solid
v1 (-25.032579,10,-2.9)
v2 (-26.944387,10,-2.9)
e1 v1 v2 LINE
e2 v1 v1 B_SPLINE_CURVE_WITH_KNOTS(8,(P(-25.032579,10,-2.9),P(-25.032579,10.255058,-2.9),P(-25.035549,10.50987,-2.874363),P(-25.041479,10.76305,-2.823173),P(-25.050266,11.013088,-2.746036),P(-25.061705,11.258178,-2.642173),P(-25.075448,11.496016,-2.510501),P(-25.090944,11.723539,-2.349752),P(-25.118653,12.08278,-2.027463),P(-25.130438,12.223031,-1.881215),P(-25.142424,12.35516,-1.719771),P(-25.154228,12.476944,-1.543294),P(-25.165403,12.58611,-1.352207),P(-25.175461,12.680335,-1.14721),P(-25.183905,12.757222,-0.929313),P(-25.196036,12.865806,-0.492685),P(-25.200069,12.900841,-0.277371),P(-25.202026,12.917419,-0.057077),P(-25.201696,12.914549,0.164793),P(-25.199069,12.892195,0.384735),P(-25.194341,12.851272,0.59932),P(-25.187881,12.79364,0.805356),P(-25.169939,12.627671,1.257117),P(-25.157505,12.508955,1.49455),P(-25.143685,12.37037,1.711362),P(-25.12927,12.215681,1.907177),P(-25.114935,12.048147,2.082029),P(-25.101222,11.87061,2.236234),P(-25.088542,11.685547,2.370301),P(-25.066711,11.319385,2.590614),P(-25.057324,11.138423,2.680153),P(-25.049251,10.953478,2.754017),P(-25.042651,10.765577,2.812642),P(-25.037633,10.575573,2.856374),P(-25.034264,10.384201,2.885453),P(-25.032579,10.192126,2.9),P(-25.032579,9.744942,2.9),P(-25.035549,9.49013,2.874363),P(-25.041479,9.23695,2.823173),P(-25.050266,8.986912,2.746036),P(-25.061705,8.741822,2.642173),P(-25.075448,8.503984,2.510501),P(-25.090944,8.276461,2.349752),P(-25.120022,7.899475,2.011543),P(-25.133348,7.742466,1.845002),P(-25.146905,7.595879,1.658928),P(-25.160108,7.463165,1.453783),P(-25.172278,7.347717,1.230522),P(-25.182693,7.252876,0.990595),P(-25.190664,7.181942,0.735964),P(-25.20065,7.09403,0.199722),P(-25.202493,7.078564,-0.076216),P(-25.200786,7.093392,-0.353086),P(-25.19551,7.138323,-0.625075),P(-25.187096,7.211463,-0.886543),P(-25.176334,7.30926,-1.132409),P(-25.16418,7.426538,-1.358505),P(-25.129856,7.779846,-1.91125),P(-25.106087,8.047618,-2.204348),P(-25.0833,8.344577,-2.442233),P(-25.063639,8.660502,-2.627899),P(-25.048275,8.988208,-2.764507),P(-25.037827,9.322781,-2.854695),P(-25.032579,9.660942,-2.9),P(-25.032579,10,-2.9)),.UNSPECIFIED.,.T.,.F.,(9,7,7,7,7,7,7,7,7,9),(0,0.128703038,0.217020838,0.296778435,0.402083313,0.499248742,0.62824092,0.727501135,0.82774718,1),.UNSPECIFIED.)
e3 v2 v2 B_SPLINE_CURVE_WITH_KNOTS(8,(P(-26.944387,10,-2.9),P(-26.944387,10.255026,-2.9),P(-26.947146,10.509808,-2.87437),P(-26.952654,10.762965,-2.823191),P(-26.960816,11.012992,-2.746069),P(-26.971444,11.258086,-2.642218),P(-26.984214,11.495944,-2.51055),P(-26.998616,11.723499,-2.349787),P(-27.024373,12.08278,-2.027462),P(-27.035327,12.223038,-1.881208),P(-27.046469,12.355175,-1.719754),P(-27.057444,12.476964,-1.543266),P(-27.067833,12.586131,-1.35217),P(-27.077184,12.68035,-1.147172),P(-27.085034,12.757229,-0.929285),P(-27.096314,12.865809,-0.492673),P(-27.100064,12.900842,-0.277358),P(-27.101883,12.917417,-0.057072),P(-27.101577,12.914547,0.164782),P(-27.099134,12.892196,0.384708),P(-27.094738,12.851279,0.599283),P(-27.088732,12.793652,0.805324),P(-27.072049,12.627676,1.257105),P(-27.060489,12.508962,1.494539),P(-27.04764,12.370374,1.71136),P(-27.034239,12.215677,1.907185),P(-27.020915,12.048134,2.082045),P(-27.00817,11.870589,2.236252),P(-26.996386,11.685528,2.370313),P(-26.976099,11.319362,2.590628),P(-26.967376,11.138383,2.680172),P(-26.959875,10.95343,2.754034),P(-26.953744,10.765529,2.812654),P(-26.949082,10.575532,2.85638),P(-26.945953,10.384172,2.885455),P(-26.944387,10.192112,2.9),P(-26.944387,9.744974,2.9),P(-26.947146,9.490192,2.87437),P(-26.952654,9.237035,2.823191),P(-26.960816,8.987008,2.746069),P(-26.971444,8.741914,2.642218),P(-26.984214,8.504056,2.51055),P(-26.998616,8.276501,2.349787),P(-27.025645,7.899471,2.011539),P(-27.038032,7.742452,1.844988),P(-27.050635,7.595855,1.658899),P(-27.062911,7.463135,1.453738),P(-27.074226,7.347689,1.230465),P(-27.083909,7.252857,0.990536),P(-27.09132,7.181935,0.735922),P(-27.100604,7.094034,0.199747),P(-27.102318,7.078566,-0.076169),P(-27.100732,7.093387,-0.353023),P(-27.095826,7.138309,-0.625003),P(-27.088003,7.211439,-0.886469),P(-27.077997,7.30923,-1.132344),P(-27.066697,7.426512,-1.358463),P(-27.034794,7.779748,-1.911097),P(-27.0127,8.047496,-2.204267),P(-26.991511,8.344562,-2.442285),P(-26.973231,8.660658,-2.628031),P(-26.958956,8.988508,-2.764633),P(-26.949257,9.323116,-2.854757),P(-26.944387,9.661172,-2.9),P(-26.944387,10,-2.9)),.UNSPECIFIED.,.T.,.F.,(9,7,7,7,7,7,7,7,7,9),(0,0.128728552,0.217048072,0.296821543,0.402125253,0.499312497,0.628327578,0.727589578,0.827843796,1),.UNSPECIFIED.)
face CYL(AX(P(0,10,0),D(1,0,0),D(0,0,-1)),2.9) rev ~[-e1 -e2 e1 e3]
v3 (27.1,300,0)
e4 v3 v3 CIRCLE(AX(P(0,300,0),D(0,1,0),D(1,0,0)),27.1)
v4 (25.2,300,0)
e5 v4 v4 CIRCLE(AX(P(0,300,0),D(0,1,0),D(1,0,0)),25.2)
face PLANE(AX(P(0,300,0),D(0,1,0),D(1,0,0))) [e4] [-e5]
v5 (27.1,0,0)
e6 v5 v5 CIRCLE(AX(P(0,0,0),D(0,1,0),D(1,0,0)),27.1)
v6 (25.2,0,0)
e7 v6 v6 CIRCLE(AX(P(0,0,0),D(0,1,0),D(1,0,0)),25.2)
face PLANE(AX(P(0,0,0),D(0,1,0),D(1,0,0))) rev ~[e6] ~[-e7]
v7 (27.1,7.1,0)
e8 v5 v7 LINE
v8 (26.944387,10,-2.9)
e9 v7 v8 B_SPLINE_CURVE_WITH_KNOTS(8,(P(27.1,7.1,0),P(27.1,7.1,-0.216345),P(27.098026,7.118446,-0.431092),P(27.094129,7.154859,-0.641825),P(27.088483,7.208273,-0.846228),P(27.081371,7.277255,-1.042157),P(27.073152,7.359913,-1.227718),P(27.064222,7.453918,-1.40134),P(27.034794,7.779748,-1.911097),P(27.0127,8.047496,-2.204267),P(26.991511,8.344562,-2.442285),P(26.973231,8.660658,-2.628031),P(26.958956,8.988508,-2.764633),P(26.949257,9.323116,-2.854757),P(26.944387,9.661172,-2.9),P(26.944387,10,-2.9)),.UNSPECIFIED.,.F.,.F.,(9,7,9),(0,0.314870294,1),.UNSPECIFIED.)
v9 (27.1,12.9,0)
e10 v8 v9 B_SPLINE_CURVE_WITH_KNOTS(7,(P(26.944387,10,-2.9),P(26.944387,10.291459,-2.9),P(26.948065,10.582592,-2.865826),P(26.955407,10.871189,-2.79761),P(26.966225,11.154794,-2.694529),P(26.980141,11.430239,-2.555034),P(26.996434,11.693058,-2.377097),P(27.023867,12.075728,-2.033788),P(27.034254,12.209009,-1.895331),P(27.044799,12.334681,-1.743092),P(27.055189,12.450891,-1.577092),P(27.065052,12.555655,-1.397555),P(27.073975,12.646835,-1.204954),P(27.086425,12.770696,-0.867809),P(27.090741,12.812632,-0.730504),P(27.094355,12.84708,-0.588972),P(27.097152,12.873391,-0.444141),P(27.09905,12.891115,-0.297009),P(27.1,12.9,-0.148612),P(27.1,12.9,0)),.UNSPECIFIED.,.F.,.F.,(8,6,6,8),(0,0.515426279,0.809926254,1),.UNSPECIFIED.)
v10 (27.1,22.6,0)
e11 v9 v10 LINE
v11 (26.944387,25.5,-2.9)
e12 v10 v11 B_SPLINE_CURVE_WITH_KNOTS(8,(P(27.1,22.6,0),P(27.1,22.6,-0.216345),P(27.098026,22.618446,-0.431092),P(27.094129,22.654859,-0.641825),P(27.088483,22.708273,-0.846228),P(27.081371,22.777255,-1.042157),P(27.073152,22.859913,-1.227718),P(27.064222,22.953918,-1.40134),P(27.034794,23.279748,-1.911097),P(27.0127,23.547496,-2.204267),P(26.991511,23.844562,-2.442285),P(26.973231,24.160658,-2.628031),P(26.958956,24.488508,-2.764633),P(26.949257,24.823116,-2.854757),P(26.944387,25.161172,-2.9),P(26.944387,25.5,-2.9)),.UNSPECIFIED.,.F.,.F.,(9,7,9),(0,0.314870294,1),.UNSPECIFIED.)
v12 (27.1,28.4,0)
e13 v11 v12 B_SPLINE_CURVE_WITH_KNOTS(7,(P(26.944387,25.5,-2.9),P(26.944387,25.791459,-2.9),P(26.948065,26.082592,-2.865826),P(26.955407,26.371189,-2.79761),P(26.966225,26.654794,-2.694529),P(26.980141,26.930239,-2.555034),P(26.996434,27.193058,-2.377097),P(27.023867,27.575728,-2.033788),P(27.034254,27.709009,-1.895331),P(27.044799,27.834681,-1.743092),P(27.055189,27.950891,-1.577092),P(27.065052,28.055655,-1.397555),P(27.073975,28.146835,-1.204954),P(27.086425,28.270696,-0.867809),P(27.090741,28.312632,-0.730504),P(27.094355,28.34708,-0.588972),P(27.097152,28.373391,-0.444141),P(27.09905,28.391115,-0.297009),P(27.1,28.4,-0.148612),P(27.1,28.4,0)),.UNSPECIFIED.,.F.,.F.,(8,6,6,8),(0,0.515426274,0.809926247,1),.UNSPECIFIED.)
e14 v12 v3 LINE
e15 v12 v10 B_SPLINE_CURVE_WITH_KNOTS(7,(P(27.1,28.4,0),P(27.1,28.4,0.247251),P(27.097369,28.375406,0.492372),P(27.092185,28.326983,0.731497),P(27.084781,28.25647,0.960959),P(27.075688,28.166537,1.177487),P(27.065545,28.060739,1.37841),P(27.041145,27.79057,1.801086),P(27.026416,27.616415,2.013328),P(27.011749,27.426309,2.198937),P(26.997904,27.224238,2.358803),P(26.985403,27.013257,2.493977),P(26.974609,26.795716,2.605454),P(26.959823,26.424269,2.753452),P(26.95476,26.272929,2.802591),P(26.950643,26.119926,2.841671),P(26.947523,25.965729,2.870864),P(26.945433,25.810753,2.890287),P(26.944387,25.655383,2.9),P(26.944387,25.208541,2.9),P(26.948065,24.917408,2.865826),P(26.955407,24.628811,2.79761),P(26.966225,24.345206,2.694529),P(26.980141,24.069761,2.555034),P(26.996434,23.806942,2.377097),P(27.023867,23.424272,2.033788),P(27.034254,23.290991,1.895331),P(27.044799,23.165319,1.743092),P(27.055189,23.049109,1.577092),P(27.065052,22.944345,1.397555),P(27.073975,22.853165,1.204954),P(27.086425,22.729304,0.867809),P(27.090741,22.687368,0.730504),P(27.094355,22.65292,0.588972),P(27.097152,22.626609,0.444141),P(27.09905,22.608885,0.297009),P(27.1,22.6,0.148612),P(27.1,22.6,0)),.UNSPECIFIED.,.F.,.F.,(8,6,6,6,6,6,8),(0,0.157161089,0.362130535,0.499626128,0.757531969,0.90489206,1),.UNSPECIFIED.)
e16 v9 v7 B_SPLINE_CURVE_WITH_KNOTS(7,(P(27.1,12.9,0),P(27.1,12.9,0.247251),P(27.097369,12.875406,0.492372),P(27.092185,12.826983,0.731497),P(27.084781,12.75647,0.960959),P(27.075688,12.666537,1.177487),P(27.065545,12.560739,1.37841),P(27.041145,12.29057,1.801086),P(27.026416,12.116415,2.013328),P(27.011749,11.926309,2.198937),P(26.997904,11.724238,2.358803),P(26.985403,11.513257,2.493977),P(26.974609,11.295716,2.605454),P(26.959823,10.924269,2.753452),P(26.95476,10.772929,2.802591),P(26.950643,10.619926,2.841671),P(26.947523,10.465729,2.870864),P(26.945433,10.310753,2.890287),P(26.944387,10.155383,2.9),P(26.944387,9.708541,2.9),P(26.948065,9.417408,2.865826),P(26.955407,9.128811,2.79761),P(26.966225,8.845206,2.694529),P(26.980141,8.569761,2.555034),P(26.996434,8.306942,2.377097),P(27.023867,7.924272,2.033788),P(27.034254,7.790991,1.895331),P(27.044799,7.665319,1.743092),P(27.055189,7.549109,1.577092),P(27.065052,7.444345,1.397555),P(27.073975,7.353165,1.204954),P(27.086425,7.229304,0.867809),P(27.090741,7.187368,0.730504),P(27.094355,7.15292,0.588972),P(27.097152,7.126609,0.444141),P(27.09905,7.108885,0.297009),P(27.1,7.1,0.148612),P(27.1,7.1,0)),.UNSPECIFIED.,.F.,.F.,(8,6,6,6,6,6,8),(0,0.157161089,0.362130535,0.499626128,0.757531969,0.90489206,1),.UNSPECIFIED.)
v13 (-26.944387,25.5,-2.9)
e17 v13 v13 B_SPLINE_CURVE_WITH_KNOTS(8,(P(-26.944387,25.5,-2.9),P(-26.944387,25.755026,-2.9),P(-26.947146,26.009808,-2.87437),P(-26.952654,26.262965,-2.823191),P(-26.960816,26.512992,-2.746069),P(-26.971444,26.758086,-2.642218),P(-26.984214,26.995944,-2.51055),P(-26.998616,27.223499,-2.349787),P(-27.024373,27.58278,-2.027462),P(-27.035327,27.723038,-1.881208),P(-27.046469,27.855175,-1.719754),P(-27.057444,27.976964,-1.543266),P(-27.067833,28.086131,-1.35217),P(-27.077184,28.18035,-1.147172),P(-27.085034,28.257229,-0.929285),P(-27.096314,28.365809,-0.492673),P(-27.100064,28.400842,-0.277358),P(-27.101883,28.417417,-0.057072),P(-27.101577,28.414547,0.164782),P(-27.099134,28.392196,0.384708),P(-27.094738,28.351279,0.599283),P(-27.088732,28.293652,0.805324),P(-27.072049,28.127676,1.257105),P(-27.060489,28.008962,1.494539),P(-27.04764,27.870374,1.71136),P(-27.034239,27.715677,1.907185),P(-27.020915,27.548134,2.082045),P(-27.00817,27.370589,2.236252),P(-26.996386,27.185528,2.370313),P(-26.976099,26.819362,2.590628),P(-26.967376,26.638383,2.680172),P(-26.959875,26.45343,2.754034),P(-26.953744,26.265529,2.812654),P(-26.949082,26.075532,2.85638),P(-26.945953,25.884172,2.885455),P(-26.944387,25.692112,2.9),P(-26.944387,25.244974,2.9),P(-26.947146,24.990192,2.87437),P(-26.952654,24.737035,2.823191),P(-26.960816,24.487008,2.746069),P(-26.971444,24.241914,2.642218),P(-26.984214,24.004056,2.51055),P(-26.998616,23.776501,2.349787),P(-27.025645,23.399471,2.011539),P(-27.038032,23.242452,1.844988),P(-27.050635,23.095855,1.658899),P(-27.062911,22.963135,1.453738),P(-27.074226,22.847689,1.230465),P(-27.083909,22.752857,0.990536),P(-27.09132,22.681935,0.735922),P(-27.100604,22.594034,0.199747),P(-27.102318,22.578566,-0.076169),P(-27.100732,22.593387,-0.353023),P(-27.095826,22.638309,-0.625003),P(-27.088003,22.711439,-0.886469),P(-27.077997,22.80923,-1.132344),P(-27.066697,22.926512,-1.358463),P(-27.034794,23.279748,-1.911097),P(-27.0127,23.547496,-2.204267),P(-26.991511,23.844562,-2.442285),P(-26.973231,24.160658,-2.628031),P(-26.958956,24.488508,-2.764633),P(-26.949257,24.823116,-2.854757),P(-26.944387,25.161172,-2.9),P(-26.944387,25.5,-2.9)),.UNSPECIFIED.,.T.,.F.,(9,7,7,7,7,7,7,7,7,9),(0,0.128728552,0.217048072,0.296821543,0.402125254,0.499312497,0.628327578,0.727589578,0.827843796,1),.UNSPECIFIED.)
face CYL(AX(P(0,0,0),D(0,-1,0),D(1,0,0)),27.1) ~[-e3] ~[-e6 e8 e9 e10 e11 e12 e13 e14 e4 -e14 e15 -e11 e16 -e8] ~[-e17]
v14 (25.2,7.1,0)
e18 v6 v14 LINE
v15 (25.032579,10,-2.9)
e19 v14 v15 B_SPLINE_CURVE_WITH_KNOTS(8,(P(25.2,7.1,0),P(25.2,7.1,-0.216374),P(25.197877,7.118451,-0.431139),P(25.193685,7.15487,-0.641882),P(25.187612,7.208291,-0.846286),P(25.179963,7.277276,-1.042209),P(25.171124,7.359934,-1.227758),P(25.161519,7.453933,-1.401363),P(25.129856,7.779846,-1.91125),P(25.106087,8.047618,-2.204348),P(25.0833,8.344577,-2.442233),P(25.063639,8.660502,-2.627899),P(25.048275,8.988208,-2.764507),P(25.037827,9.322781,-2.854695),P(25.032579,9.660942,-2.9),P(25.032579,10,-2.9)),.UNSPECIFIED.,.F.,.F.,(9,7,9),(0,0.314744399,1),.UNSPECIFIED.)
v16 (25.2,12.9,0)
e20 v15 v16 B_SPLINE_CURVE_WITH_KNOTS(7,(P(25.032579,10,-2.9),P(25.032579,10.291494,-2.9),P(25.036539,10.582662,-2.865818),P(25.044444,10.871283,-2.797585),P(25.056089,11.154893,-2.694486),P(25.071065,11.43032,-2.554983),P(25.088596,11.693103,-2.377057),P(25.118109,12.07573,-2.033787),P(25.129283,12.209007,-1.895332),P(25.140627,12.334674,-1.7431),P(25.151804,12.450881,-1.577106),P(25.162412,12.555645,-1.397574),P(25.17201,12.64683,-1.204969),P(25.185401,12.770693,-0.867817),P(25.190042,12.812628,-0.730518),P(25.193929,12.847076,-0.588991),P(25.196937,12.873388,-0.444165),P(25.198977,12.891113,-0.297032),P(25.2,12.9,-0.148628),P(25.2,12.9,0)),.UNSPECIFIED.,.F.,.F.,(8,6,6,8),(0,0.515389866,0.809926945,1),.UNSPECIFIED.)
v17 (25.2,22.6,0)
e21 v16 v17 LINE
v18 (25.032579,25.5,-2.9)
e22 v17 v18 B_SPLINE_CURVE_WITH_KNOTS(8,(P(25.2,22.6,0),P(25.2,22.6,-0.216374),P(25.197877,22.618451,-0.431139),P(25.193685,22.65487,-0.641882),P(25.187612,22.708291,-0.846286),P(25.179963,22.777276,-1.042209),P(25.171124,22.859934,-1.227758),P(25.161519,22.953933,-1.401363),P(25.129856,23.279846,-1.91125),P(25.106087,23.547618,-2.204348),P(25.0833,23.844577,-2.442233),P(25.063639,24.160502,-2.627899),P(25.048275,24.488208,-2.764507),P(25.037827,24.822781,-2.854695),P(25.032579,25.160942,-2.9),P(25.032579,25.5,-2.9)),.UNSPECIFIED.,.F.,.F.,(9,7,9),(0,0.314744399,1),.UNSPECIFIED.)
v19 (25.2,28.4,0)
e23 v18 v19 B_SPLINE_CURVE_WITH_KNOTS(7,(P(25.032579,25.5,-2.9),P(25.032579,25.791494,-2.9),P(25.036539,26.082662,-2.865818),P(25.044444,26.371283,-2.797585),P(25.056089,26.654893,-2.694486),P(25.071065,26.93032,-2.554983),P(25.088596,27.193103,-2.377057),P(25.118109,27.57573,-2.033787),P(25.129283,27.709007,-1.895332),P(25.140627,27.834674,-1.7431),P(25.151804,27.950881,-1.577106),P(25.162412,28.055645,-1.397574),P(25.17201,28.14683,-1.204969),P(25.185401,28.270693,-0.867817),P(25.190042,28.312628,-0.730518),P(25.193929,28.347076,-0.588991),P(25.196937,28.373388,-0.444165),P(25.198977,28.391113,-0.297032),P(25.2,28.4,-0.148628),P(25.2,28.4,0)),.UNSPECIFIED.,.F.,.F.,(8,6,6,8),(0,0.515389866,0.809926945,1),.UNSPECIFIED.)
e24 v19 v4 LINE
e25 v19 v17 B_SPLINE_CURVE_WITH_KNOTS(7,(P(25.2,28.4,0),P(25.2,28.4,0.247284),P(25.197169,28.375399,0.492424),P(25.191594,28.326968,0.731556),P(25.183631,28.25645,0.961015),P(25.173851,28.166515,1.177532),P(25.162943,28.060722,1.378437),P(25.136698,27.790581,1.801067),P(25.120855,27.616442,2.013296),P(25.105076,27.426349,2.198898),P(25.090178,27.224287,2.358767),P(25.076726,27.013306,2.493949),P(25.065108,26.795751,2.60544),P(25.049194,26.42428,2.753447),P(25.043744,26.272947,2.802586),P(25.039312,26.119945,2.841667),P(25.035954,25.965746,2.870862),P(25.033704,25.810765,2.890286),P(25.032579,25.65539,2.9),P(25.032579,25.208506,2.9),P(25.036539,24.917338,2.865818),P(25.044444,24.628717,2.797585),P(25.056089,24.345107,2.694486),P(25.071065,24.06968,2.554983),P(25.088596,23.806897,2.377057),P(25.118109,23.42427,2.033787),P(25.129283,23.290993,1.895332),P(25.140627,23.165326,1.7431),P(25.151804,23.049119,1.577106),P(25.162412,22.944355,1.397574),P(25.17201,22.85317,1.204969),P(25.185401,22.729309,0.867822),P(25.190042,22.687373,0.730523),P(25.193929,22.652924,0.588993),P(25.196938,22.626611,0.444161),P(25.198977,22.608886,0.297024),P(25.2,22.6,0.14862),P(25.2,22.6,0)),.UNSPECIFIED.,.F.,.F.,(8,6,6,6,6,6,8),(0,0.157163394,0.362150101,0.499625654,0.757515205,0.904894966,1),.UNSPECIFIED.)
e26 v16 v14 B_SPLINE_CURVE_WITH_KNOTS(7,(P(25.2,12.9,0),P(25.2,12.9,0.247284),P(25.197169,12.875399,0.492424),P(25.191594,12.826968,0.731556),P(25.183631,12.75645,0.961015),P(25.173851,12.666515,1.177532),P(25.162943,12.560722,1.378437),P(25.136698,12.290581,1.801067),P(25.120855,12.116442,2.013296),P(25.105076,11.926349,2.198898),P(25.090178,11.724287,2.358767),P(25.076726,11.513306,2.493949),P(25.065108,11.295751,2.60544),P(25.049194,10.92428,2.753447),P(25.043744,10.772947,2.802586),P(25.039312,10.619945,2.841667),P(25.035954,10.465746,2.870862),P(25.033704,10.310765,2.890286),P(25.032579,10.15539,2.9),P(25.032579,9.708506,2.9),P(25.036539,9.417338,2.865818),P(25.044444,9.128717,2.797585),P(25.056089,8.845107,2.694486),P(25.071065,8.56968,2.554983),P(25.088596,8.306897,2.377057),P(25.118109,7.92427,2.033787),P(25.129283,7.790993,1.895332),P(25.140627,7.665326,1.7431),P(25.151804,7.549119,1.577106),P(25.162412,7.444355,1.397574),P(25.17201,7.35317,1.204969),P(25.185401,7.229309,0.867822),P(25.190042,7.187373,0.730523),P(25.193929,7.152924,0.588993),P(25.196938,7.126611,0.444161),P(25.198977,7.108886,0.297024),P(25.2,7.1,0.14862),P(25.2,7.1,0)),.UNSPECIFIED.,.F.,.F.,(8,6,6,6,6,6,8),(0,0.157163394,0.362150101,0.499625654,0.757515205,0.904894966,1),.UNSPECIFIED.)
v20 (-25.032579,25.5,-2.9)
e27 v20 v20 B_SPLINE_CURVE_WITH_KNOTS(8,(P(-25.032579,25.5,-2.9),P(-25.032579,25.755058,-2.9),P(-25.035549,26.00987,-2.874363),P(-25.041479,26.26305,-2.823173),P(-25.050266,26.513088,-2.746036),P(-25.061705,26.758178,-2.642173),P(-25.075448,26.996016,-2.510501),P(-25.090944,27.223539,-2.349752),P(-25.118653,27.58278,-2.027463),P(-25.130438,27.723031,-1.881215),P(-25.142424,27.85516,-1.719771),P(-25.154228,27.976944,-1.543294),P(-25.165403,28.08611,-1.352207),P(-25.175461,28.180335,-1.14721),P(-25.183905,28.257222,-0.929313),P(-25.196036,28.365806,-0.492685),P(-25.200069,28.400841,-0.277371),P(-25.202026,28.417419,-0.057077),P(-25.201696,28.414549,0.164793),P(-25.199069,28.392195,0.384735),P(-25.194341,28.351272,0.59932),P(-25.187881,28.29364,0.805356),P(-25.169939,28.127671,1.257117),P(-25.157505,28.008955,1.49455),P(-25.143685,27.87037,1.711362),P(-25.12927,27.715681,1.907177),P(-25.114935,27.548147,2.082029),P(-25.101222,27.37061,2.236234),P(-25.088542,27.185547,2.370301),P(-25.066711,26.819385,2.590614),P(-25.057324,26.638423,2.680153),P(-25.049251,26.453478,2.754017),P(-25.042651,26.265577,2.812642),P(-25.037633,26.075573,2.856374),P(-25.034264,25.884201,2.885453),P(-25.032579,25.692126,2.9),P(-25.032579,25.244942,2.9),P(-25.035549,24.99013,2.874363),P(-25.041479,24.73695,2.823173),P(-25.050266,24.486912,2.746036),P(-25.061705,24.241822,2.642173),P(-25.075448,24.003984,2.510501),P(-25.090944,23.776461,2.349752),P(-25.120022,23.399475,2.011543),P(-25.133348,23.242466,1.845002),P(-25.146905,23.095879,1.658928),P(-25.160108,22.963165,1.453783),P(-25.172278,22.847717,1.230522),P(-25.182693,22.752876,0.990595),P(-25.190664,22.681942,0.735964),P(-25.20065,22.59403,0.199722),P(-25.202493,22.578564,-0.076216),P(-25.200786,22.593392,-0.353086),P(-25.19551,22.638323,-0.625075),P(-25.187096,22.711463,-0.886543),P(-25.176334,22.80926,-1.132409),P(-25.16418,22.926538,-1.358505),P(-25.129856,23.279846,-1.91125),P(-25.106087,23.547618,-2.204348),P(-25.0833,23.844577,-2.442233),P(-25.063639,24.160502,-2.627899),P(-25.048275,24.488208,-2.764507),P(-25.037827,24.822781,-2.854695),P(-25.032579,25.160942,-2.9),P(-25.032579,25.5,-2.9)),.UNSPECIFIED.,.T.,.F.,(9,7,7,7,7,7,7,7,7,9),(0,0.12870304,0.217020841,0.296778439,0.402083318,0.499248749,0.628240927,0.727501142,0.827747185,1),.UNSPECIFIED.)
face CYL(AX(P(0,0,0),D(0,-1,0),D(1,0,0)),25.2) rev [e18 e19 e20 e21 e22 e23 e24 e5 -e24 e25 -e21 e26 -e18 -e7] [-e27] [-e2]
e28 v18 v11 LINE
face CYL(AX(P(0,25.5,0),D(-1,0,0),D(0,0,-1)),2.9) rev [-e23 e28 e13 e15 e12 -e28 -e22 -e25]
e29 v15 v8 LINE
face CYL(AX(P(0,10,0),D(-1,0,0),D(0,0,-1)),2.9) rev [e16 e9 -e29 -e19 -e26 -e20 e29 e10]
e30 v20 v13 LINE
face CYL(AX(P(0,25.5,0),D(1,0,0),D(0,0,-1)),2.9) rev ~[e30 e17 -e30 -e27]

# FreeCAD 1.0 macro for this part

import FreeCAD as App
import Part
import Sketcher

V = App.Vector

doc = App.newDocument("Part")
params = doc.addObject("Spreadsheet::Sheet", "Params")
for row, (alias, value) in enumerate([
    ("sketch1_diameter", "54.2 mm"),
    ("sketch1_diameter2", "50.4 mm"),
    ("pad1_length", "300 mm"),
    ("sketch2_diameter", "5.8 mm"),
], start=1):
    params.set(f"A{row}", alias)
    params.set(f"B{row}", "=" + value)
    params.setAlias(f"B{row}", alias)

body = doc.addObject("PartDesign::Body", "Body")

# Sketch on XZ plane
sketch1 = body.newObject("Sketcher::SketchObject", "Sketch")
sketch1.AttachmentSupport = (doc.getObject("XZ_Plane"), [""])
sketch1.MapMode = "FlatFace"
sketch1.addGeometry([
    Part.Circle(V(0, 0, 0), V(0, 0, 1), 27.1),
    Part.Circle(V(0, 0, 0), V(0, 0, 1), 25.2),
], False)
sketch1.addConstraint([
    Sketcher.Constraint("Coincident", 0, 3, -1, 1),
    Sketcher.Constraint("Coincident", 1, 3, -1, 1),
    Sketcher.Constraint("Diameter", 0, 54.2),
    Sketcher.Constraint("Diameter", 1, 50.4),
])
sketch1.setExpression("Constraints[2]", "Params.sketch1_diameter")
sketch1.setExpression("Constraints[3]", "Params.sketch1_diameter2")
pad1 = body.newObject("PartDesign::Pad", "Pad")
pad1.Profile = sketch1
pad1.setExpression("Length", "Params.pad1_length")
pad1.Reversed = True

# Sketch on YZ plane
sketch2 = body.newObject("Sketcher::SketchObject", "Sketch001")
sketch2.AttachmentSupport = (doc.getObject("YZ_Plane"), [""])
sketch2.MapMode = "FlatFace"
sketch2.addGeometry([
    Part.Circle(V(10, 0, 0), V(0, 0, 1), 2.9),
    Part.Circle(V(25.5, 0, 0), V(0, 0, 1), 2.9),
], False)
sketch2.addConstraint([
    Sketcher.Constraint("Equal", 0, 1),
    Sketcher.Constraint("PointOnObject", 0, 3, -1),
    Sketcher.Constraint("PointOnObject", 1, 3, -1),
    Sketcher.Constraint("Diameter", 0, 5.8),
    Sketcher.Constraint("DistanceX", -1, 1, 0, 3, 10.0),
    Sketcher.Constraint("DistanceX", -1, 1, 1, 3, 25.5),
])
sketch2.setExpression("Constraints[3]", "Params.sketch2_diameter")
pocket1 = body.newObject("PartDesign::Pocket", "Pocket")
pocket1.Profile = sketch2
pocket1.Type = "ThroughAll"
pocket1.Midplane = True

doc.recompute()
